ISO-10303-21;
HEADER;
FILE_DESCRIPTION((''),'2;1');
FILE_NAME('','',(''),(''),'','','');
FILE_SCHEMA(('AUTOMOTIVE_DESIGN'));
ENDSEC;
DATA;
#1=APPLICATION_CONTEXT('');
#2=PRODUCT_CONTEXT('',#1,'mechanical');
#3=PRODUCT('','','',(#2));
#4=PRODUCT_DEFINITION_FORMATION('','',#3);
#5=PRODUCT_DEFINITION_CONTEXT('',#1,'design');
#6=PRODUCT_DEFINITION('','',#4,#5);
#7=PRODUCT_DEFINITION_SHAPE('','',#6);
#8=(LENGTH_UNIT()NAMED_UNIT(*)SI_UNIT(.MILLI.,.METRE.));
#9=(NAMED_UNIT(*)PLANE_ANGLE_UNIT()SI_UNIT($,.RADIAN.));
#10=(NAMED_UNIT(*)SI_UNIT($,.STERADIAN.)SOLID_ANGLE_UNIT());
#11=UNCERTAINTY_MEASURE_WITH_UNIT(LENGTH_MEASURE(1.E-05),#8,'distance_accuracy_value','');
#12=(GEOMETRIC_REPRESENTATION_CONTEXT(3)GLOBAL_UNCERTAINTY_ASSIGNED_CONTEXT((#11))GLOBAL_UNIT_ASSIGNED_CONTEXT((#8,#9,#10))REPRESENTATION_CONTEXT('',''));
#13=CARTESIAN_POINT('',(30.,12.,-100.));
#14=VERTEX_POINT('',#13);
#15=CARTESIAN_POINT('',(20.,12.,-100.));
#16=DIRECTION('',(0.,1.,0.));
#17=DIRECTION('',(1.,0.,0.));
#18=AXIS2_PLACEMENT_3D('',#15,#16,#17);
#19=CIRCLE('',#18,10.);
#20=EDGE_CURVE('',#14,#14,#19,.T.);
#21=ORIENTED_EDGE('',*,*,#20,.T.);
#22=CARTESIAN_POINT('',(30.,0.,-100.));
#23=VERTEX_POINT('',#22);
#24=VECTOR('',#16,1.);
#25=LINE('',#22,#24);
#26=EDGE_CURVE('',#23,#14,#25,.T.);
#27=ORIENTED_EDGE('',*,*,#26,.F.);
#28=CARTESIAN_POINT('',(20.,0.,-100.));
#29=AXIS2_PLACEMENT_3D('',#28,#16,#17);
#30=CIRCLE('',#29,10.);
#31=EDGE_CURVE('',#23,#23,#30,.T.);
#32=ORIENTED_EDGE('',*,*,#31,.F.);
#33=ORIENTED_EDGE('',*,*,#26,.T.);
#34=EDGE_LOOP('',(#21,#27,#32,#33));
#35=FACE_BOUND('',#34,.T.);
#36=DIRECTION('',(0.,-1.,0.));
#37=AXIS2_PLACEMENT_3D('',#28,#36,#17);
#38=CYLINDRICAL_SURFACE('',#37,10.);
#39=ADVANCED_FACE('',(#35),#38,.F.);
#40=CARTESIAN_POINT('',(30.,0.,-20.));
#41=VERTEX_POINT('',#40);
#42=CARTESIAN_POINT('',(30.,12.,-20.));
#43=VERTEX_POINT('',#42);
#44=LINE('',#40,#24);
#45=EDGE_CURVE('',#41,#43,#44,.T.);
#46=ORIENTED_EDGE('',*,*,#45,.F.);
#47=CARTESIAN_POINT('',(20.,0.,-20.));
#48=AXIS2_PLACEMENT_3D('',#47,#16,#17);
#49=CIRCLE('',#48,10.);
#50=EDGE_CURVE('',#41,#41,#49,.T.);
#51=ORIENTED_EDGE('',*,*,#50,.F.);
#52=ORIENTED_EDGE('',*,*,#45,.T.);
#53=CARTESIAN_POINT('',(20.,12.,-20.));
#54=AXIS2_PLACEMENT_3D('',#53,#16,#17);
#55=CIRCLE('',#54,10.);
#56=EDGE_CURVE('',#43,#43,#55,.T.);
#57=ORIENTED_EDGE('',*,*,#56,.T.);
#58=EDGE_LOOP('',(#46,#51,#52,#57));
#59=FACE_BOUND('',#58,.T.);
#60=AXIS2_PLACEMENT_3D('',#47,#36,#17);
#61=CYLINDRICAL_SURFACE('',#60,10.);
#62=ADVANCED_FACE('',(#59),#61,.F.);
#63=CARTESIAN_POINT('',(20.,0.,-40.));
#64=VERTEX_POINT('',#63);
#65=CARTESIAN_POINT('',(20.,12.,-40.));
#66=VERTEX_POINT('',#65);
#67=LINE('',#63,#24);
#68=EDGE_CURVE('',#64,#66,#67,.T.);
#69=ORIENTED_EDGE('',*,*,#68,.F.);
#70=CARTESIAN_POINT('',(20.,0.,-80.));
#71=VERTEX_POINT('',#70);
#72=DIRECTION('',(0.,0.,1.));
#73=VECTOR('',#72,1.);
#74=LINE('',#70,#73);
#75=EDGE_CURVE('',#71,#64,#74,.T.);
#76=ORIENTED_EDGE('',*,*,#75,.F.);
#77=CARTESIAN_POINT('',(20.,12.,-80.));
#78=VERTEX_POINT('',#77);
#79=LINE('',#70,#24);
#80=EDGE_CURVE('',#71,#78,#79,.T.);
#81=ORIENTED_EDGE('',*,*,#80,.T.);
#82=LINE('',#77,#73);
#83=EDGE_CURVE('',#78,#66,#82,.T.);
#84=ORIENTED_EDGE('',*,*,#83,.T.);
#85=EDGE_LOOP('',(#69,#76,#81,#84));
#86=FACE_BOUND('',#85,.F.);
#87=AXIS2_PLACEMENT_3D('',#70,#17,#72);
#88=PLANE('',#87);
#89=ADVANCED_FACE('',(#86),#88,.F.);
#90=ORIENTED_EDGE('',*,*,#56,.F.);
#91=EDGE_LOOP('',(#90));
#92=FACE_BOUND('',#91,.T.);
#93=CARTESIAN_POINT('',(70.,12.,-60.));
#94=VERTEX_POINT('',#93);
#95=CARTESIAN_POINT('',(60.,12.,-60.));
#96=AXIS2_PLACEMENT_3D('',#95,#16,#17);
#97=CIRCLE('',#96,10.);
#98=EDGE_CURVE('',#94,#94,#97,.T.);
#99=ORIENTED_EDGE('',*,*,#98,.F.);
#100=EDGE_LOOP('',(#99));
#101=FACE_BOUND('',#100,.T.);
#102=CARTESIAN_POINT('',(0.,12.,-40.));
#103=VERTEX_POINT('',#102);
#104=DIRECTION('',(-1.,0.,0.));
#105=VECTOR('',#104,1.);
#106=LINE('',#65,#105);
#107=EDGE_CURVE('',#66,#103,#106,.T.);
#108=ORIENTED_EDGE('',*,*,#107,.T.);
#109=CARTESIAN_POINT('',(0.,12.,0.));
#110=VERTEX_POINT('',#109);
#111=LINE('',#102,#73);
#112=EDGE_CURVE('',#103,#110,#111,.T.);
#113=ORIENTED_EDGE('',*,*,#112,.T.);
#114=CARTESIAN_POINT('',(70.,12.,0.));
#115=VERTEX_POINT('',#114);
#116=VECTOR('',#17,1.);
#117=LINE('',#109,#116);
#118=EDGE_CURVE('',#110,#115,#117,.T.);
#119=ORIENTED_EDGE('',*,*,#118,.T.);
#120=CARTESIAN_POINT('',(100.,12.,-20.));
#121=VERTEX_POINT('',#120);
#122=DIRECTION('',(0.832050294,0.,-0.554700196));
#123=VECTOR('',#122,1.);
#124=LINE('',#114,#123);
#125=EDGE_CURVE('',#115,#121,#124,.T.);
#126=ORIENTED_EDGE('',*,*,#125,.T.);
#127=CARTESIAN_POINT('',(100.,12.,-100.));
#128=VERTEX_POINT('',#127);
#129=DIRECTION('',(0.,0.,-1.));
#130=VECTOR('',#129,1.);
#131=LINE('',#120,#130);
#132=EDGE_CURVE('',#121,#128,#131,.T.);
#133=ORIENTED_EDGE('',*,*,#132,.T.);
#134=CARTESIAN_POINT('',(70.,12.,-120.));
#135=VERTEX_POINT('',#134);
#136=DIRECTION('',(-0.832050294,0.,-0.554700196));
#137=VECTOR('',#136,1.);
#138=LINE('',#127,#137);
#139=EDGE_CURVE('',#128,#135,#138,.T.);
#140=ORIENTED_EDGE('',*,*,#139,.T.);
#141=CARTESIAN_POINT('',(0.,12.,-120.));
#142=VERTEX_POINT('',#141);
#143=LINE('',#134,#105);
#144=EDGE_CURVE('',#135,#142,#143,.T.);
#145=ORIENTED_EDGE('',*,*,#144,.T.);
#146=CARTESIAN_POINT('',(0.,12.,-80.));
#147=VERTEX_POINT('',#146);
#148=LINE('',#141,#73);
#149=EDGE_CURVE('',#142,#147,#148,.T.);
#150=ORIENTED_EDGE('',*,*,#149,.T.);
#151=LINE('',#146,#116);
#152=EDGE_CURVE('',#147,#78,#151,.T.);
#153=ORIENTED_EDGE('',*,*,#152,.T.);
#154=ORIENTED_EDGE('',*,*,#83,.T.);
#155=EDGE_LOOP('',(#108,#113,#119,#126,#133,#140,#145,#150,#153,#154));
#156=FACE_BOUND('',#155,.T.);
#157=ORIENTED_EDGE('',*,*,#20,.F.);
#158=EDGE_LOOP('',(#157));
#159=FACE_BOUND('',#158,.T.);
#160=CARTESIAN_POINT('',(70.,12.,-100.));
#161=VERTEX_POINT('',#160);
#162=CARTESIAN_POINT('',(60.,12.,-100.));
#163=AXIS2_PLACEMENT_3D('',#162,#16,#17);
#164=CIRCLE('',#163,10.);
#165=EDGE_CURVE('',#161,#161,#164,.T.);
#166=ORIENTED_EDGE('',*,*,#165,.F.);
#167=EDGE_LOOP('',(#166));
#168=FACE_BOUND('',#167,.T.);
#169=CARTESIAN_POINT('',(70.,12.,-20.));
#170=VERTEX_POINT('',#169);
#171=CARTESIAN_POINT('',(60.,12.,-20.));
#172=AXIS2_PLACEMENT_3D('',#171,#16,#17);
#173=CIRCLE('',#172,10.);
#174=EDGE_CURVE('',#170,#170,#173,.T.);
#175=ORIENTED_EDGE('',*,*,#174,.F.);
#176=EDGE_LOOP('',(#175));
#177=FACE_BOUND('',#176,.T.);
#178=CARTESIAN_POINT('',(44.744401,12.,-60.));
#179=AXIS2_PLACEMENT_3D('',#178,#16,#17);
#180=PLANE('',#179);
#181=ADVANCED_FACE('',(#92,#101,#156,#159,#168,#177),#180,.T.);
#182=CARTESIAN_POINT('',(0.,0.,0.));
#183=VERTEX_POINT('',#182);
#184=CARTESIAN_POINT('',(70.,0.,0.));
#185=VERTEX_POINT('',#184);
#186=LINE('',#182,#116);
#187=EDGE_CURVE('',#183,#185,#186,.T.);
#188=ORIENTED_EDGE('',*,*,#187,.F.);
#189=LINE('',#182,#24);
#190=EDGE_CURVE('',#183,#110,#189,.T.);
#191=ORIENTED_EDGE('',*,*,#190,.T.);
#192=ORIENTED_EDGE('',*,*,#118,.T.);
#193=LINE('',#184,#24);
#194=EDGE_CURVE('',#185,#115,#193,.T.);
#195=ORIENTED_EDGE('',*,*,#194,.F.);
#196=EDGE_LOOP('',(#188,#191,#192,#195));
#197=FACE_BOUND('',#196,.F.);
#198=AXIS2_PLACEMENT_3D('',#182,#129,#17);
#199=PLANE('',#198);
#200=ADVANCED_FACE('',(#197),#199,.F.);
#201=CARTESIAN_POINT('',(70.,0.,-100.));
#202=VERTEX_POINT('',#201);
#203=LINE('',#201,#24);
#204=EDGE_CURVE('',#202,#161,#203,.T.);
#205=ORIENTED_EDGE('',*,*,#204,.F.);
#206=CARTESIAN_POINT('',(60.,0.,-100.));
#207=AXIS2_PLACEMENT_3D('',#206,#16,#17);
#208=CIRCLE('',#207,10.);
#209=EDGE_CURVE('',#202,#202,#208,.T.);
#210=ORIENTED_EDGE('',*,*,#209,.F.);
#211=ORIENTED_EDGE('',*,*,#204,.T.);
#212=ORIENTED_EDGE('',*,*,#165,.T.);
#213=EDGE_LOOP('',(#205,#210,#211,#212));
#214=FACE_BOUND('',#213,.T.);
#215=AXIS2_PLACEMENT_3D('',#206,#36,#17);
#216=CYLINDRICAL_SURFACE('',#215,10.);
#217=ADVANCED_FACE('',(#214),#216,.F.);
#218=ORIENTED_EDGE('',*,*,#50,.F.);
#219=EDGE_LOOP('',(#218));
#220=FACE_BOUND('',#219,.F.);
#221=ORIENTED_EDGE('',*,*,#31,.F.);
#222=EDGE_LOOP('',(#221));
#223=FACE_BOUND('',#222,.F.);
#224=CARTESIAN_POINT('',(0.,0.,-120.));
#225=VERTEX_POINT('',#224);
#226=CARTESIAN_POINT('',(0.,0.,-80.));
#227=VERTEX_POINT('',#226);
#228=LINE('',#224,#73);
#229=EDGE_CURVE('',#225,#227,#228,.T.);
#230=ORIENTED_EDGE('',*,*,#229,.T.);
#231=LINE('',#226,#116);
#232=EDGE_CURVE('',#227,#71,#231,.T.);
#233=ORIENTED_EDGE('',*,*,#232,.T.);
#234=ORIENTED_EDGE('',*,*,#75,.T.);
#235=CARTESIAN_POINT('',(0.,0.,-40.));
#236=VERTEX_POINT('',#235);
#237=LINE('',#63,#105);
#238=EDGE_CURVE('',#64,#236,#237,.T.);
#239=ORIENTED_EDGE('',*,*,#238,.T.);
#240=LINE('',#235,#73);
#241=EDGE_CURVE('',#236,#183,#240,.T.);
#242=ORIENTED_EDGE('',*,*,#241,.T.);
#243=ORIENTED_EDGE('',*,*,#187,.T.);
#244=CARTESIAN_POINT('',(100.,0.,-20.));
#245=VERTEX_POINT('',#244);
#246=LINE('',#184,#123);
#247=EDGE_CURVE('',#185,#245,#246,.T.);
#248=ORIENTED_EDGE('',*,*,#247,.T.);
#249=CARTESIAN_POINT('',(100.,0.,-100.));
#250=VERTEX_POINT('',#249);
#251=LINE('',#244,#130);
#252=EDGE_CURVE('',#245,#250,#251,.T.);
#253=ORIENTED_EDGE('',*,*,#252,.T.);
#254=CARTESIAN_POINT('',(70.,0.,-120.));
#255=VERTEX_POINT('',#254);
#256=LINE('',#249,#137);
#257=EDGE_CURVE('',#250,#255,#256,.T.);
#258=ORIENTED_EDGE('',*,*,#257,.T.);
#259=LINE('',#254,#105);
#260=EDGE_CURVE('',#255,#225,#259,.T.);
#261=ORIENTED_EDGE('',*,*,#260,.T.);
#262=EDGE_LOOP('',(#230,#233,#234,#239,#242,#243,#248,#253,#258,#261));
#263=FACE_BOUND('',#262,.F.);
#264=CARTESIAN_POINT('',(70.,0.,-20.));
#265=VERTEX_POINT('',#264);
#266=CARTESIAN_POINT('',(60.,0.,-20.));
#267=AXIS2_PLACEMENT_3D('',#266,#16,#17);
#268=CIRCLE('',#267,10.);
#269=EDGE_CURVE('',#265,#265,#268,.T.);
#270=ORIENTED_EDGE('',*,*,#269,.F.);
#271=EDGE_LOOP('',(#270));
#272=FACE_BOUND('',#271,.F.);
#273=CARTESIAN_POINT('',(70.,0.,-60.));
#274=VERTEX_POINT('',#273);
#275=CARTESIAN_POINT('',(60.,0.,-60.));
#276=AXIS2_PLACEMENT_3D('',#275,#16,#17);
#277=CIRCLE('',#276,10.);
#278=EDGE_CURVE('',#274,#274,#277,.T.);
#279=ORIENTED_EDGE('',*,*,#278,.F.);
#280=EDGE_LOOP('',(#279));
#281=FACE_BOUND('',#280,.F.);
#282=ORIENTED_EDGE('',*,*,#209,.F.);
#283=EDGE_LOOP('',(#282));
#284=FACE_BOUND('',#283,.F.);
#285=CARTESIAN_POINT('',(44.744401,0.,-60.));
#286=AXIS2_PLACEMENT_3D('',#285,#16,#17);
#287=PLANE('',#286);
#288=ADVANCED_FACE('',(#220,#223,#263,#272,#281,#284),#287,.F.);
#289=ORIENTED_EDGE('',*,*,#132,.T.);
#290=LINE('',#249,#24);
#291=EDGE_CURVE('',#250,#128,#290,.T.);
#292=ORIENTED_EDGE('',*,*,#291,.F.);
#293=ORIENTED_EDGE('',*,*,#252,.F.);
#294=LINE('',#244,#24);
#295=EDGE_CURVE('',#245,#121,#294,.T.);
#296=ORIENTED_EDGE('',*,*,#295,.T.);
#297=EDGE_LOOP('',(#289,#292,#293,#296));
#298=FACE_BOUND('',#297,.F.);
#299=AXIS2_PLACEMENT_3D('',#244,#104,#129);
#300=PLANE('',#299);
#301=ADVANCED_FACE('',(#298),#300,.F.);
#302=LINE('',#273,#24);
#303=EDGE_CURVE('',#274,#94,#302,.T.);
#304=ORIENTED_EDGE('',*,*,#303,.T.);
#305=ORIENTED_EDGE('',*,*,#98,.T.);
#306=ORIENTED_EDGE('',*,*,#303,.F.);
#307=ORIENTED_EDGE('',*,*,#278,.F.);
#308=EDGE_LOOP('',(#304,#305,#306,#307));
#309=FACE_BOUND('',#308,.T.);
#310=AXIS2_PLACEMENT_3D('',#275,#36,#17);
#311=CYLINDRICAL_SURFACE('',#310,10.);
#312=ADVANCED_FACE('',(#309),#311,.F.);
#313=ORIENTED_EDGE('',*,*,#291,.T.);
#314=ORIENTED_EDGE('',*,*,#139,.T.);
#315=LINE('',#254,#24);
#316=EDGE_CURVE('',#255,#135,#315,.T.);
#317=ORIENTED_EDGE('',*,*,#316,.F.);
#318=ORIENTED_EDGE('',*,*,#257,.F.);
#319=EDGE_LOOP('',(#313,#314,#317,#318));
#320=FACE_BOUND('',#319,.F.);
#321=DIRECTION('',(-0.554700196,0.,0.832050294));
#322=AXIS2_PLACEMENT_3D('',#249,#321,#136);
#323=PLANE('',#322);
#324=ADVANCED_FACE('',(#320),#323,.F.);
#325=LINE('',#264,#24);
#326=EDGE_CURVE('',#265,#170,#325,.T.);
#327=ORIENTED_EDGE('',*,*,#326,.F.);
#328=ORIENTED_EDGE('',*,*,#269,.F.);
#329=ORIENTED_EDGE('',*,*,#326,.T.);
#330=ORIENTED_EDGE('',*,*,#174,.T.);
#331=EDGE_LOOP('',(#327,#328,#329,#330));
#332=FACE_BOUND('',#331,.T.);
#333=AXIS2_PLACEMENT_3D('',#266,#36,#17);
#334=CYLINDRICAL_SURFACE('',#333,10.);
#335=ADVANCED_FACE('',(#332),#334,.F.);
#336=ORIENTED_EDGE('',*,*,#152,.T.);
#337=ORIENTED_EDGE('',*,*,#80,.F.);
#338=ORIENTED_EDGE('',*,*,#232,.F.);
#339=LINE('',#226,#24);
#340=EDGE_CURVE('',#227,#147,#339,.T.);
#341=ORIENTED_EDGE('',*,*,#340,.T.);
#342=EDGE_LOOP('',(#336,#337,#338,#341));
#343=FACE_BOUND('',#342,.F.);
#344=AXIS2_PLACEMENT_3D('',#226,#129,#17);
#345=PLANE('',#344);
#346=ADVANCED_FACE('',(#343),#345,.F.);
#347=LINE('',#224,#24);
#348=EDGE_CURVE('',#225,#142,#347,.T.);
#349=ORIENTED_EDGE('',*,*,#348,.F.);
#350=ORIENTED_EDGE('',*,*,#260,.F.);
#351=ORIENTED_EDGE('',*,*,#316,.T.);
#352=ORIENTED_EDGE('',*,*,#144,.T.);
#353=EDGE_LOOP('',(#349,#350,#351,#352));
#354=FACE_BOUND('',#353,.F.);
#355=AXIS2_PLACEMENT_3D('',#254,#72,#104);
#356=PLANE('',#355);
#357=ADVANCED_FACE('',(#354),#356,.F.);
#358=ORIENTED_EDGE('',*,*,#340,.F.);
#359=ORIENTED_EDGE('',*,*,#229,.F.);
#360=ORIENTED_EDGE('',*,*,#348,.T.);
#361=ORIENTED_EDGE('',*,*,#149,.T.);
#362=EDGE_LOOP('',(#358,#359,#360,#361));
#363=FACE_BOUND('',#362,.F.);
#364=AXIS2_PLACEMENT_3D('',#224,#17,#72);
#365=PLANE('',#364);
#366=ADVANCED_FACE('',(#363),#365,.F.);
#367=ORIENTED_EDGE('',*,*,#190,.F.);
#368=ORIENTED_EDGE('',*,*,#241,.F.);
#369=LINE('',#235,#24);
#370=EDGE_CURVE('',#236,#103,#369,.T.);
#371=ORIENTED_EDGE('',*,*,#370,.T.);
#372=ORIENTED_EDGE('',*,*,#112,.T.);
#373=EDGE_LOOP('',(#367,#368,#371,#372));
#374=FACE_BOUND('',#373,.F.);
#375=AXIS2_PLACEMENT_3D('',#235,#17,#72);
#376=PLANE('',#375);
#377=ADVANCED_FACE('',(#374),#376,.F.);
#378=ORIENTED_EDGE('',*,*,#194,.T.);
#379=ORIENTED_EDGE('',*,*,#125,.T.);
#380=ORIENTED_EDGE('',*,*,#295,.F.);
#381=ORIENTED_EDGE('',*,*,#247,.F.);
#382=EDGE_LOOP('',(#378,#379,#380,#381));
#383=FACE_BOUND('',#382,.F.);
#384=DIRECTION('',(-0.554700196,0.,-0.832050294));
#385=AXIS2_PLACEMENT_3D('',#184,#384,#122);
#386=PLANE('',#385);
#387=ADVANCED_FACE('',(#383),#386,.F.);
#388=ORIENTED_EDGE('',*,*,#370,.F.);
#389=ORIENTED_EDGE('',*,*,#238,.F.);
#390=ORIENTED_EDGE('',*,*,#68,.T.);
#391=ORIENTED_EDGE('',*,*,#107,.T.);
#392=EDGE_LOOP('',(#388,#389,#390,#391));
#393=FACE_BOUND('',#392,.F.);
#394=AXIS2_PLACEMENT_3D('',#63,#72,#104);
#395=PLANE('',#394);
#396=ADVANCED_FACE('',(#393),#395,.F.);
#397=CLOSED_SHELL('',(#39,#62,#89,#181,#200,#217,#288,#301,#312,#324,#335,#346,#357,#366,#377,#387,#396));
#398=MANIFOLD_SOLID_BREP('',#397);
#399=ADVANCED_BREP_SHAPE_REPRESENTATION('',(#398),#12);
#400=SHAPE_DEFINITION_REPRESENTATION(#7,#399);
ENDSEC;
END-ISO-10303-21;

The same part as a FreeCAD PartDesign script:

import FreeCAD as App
import Part
import Sketcher

doc = App.newDocument("Part")
body = doc.addObject("PartDesign::Body", "Body")

sketch1 = body.newObject("Sketcher::SketchObject", "Sketch")
sketch1.AttachmentSupport = (doc.getObject("XZ_Plane"), [""])
sketch1.MapMode = "FlatFace"
sketch1.addGeometry(Part.LineSegment(App.Vector(0, 0, 0), App.Vector(70, 0, 0)), False)
sketch1.addGeometry(Part.LineSegment(App.Vector(70, 0, 0), App.Vector(100, -20, 0)), False)
sketch1.addGeometry(Part.LineSegment(App.Vector(100, -20, 0), App.Vector(100, -100, 0)), False)
sketch1.addGeometry(Part.LineSegment(App.Vector(100, -100, 0), App.Vector(70, -120, 0)), False)
sketch1.addGeometry(Part.LineSegment(App.Vector(70, -120, 0), App.Vector(0, -120, 0)), False)
sketch1.addGeometry(Part.LineSegment(App.Vector(0, -120, 0), App.Vector(0, -80, 0)), False)
sketch1.addGeometry(Part.LineSegment(App.Vector(0, -80, 0), App.Vector(20, -80, 0)), False)
sketch1.addGeometry(Part.LineSegment(App.Vector(20, -80, 0), App.Vector(20, -40, 0)), False)
sketch1.addGeometry(Part.LineSegment(App.Vector(20, -40, 0), App.Vector(0, -40, 0)), False)
sketch1.addGeometry(Part.LineSegment(App.Vector(0, -40, 0), App.Vector(0, 0, 0)), False)
sketch1.addGeometry(Part.Circle(App.Vector(20, -20, 0), App.Vector(0, 0, 1), 10), False)
sketch1.addGeometry(Part.Circle(App.Vector(60, -20, 0), App.Vector(0, 0, 1), 10), False)
sketch1.addGeometry(Part.Circle(App.Vector(20, -100, 0), App.Vector(0, 0, 1), 10), False)
sketch1.addGeometry(Part.Circle(App.Vector(60, -60, 0), App.Vector(0, 0, 1), 10), False)
sketch1.addGeometry(Part.Circle(App.Vector(60, -100, 0), App.Vector(0, 0, 1), 10), False)
sketch1.addConstraint(Sketcher.Constraint("Coincident", 0, 2, 1, 1))
sketch1.addConstraint(Sketcher.Constraint("Coincident", 1, 2, 2, 1))
sketch1.addConstraint(Sketcher.Constraint("Coincident", 2, 2, 3, 1))
sketch1.addConstraint(Sketcher.Constraint("Coincident", 3, 2, 4, 1))
sketch1.addConstraint(Sketcher.Constraint("Coincident", 4, 2, 5, 1))
sketch1.addConstraint(Sketcher.Constraint("Coincident", 5, 2, 6, 1))
sketch1.addConstraint(Sketcher.Constraint("Coincident", 6, 2, 7, 1))
sketch1.addConstraint(Sketcher.Constraint("Coincident", 7, 2, 8, 1))
sketch1.addConstraint(Sketcher.Constraint("Coincident", 8, 2, 9, 1))
sketch1.addConstraint(Sketcher.Constraint("Coincident", 9, 2, 0, 1))
sketch1.addConstraint(Sketcher.Constraint("Horizontal", 0))
sketch1.addConstraint(Sketcher.Constraint("Vertical", 2))
sketch1.addConstraint(Sketcher.Constraint("Horizontal", 4))
sketch1.addConstraint(Sketcher.Constraint("Vertical", 5))
sketch1.addConstraint(Sketcher.Constraint("Horizontal", 6))
sketch1.addConstraint(Sketcher.Constraint("Vertical", 7))
sketch1.addConstraint(Sketcher.Constraint("Horizontal", 8))
sketch1.addConstraint(Sketcher.Constraint("Vertical", 9))
sketch1.addConstraint(Sketcher.Constraint("Coincident", 9, 2, -1, 1))
sketch1.addConstraint(Sketcher.Constraint("Equal", 10, 11))
sketch1.addConstraint(Sketcher.Constraint("Equal", 11, 12))
sketch1.addConstraint(Sketcher.Constraint("Equal", 12, 13))
sketch1.addConstraint(Sketcher.Constraint("Equal", 13, 14))
sketch1.addConstraint(Sketcher.Constraint("PointOnObject", 4, 2, -2))
sketch1.addConstraint(Sketcher.Constraint("Horizontal", 10, 3, 11, 3))
sketch1.addConstraint(Sketcher.Constraint("Horizontal", 12, 3, 14, 3))
sketch1.addConstraint(Sketcher.Constraint("Horizontal", 11, 3, 1, 2))
sketch1.addConstraint(Sketcher.Constraint("Horizontal", 14, 3, 2, 2))
sketch1.addConstraint(Sketcher.Constraint("Vertical", 10, 3, 12, 3))
sketch1.addConstraint(Sketcher.Constraint("Vertical", 11, 3, 13, 3))
sketch1.addConstraint(Sketcher.Constraint("Vertical", 13, 3, 14, 3))
sketch1.addConstraint(Sketcher.Constraint("Vertical", 0, 2, 3, 2))
sketch1.addConstraint(Sketcher.Constraint("Vertical", 12, 3, 6, 2))
sketch1.addConstraint(Sketcher.Constraint("Equal", 5, 7))
sketch1.addConstraint(Sketcher.Constraint("Equal", 7, 9))
sketch1.addConstraint(Sketcher.Constraint("Equal", 1, 3))
sketch1.addConstraint(Sketcher.Constraint("Diameter", 10, 20.0))
sketch1.addConstraint(Sketcher.Constraint("DistanceX", 0, 1, 0, 2, 70.0))
sketch1.addConstraint(Sketcher.Constraint("DistanceX", 6, 1, 6, 2, 20.0))
sketch1.addConstraint(Sketcher.Constraint("DistanceY", 2, 2, 2, 1, 80.0))
sketch1.addConstraint(Sketcher.Constraint("DistanceY", 5, 1, 5, 2, 40.0))
sketch1.addConstraint(Sketcher.Constraint("DistanceX", -1, 1, 11, 3, 60.0))
sketch1.addConstraint(Sketcher.Constraint("DistanceY", 13, 3, -1, 1, 60.0))
sketch1.addConstraint(Sketcher.Constraint("DistanceX", -1, 1, 1, 2, 100.0))
pad1 = body.newObject("PartDesign::Pad", "Pad")
pad1.Profile = sketch1
pad1.Length = 12
pad1.Reversed = True

doc.recompute()
